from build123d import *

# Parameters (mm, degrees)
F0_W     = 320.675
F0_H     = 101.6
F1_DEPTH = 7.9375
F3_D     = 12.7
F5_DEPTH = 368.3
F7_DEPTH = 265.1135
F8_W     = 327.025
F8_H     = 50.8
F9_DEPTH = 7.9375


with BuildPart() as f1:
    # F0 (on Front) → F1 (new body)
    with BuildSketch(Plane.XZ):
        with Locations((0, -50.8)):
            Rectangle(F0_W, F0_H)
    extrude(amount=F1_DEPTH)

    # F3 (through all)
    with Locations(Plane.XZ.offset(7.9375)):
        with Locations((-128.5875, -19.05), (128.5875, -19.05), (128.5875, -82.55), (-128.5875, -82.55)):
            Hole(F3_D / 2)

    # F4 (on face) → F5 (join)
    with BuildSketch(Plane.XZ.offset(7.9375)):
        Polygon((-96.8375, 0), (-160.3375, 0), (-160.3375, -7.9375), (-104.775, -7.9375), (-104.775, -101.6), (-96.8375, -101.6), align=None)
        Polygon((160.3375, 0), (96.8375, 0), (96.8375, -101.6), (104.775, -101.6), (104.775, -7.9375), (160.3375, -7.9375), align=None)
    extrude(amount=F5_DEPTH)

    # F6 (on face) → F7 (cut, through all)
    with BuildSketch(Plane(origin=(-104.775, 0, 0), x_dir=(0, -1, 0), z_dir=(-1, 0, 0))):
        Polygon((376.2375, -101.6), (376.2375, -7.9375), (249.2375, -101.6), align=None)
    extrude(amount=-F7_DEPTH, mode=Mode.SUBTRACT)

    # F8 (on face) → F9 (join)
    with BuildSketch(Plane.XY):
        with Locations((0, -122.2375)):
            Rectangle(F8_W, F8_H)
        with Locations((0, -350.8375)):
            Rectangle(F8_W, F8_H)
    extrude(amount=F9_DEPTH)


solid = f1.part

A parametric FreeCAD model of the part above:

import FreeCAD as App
import Part
import Sketcher
from FreeCAD import Vector
Q = App.Units.Quantity

doc = App.newDocument("Part")
params = doc.addObject("Spreadsheet::Sheet", "Params")
for row, (alias, value) in enumerate([
    ("sketch1_height", "4 in"),
    ("sketch1_width", "12.625 in"),
    ("pad1_length", "0.3125 in"),
    ("sketch2_diameter", "0.5 in"),
    ("hole_diameter", "0.5 in"),
    ("sketch3_height", "4 in"),
    ("sketch3_width", "2.5 in"),
    ("sketch3_width2", "2.1875 in"),
    ("pad2_length", "14.5 in"),
    ("sketch4_width", "5 in"),
    ("sketch4_height", "3.6875 in"),
    ("sketch5_height", "2 in"),
    ("sketch5_width", "12.875 in"),
    ("pad3_length", "0.3125 in"),
], start=1):
    params.set(f"A{row}", alias)
    params.set(f"B{row}", "=" + value)
    params.setAlias(f"B{row}", alias)

body = doc.addObject("PartDesign::Body", "Body")

sketch1 = body.newObject("Sketcher::SketchObject", "Sketch")
sketch1.AttachmentSupport = (doc.getObject("XZ_Plane"), [""])
sketch1.MapMode = "FlatFace"
sketch1.addGeometry([
    Part.LineSegment(Vector(-160, 0, 0), Vector(-160, -102, 0)),
    Part.LineSegment(Vector(-160, -102, 0), Vector(160, -102, 0)),
    Part.LineSegment(Vector(160, -102, 0), Vector(160, 0, 0)),
    Part.LineSegment(Vector(160, 0, 0), Vector(-160, 0, 0)),
], False)
sketch1.addConstraint([
    Sketcher.Constraint("Coincident", 0, 2, 1, 1),
    Sketcher.Constraint("Coincident", 1, 2, 2, 1),
    Sketcher.Constraint("Coincident", 2, 2, 3, 1),
    Sketcher.Constraint("Coincident", 3, 2, 0, 1),
    Sketcher.Constraint("Vertical", 0),
    Sketcher.Constraint("Horizontal", 1),
    Sketcher.Constraint("Vertical", 2),
    Sketcher.Constraint("Horizontal", 3),
    Sketcher.Constraint("Symmetric", 2, 2, 3, 2, -1, 1),
    Sketcher.Constraint("DistanceY", 0, 2, 0, 1, Q("4 in")),
    Sketcher.Constraint("DistanceX", 1, 1, 1, 2, Q("12.625 in")),
])
sketch1.setExpression("Constraints[9]", "Params.sketch1_height")
sketch1.setExpression("Constraints[10]", "Params.sketch1_width")
pad1 = body.newObject("PartDesign::Pad", "Pad")
pad1.Profile = sketch1
pad1.setExpression("Length", "Params.pad1_length")

sketch2 = body.newObject("Sketcher::SketchObject", "Sketch001")
sketch2.AttachmentSupport = (doc.getObject("XZ_Plane"), [""])
sketch2.MapMode = "FlatFace"
sketch2.AttachmentOffset = App.Placement(Vector(0, 0, 0.3125 * 25.4), App.Rotation())
sketch2.addGeometry([
    Part.Circle(Vector(-129, -19, 0), Vector(0, 0, 1), 6),
    Part.Circle(Vector(129, -19, 0), Vector(0, 0, 1), 6),
    Part.Circle(Vector(129, -83, 0), Vector(0, 0, 1), 6),
    Part.Circle(Vector(-129, -83, 0), Vector(0, 0, 1), 6),
], False)
sketch2.addConstraint([
    Sketcher.Constraint("Equal", 0, 1),
    Sketcher.Constraint("Equal", 1, 2),
    Sketcher.Constraint("Equal", 2, 3),
    Sketcher.Constraint("Symmetric", 0, 3, 1, 3, -2),
    Sketcher.Constraint("Symmetric", 2, 3, 3, 3, -2),
    Sketcher.Constraint("Vertical", 1, 3, 2, 3),
    Sketcher.Constraint("Diameter", 0, Q("0.5 in")),
    Sketcher.Constraint("DistanceY", 2, 3, 1, 3, Q("2.5 in")),
    Sketcher.Constraint("DistanceY", 0, 3, -1, 1, Q("0.75 in")),
    Sketcher.Constraint("DistanceX", 0, 3, -1, 1, Q("5.0625 in")),
])
sketch2.setExpression("Constraints[6]", "Params.sketch2_diameter")
doc.recompute()
hole = body.newObject("PartDesign::Hole", "Hole")
hole.Profile = sketch2
hole.ThreadType = "None"
hole.setExpression("Diameter", "Params.hole_diameter")
hole.DepthType = "ThroughAll"

sketch3 = body.newObject("Sketcher::SketchObject", "Sketch002")
sketch3.AttachmentSupport = (doc.getObject("XZ_Plane"), [""])
sketch3.MapMode = "FlatFace"
sketch3.AttachmentOffset = App.Placement(Vector(0, 0, 0.3125 * 25.4), App.Rotation())
sketch3.addGeometry([
    Part.LineSegment(Vector(-97, 0, 0), Vector(-160, 0, 0)),
    Part.LineSegment(Vector(-160, 0, 0), Vector(-160, -8, 0)),
    Part.LineSegment(Vector(-160, -8, 0), Vector(-105, -8, 0)),
    Part.LineSegment(Vector(-105, -8, 0), Vector(-105, -102, 0)),
    Part.LineSegment(Vector(-105, -102, 0), Vector(-97, -102, 0)),
    Part.LineSegment(Vector(-97, -102, 0), Vector(-97, 0, 0)),
    Part.LineSegment(Vector(160, 0, 0), Vector(97, 0, 0)),
    Part.LineSegment(Vector(97, 0, 0), Vector(97, -102, 0)),
    Part.LineSegment(Vector(97, -102, 0), Vector(105, -102, 0)),
    Part.LineSegment(Vector(105, -102, 0), Vector(105, -8, 0)),
    Part.LineSegment(Vector(105, -8, 0), Vector(160, -8, 0)),
    Part.LineSegment(Vector(160, -8, 0), Vector(160, 0, 0)),
], False)
sketch3.addConstraint([
    Sketcher.Constraint("Coincident", 0, 2, 1, 1),
    Sketcher.Constraint("Coincident", 1, 2, 2, 1),
    Sketcher.Constraint("Coincident", 2, 2, 3, 1),
    Sketcher.Constraint("Coincident", 3, 2, 4, 1),
    Sketcher.Constraint("Coincident", 4, 2, 5, 1),
    Sketcher.Constraint("Coincident", 5, 2, 0, 1),
    Sketcher.Constraint("Coincident", 6, 2, 7, 1),
    Sketcher.Constraint("Coincident", 7, 2, 8, 1),
    Sketcher.Constraint("Coincident", 8, 2, 9, 1),
    Sketcher.Constraint("Coincident", 9, 2, 10, 1),
    Sketcher.Constraint("Coincident", 10, 2, 11, 1),
    Sketcher.Constraint("Coincident", 11, 2, 6, 1),
    Sketcher.Constraint("Horizontal", 0),
    Sketcher.Constraint("Vertical", 1),
    Sketcher.Constraint("Horizontal", 2),
    Sketcher.Constraint("Vertical", 3),
    Sketcher.Constraint("Horizontal", 4),
    Sketcher.Constraint("Vertical", 5),
    Sketcher.Constraint("Horizontal", 6),
    Sketcher.Constraint("Vertical", 7),
    Sketcher.Constraint("Horizontal", 8),
    Sketcher.Constraint("Vertical", 9),
    Sketcher.Constraint("Horizontal", 10),
    Sketcher.Constraint("Vertical", 11),
    Sketcher.Constraint("Symmetric", 5, 2, 6, 2, -1, 1),
    Sketcher.Constraint("Symmetric", 3, 2, 8, 2, -2),
    Sketcher.Constraint("Symmetric", 1, 2, 10, 2, -2),
    Sketcher.Constraint("PointOnObject", 0, 2, -1),
    Sketcher.Constraint("Equal", 8, 1),
    Sketcher.Constraint("DistanceY", 5, 1, 5, 2, Q("4 in")),
    Sketcher.Constraint("DistanceX", 0, 2, 0, 1, Q("2.5 in")),
    Sketcher.Constraint("DistanceX", 2, 1, 2, 2, Q("2.1875 in")),
    Sketcher.Constraint("DistanceX", 3, 2, 8, 2, Q("8.25 in")),
])
sketch3.setExpression("Constraints[29]", "Params.sketch3_height")
sketch3.setExpression("Constraints[30]", "Params.sketch3_width")
sketch3.setExpression("Constraints[31]", "Params.sketch3_width2")
pad2 = body.newObject("PartDesign::Pad", "Pad001")
pad2.Profile = sketch3
pad2.setExpression("Length", "Params.pad2_length")

sketch4 = body.newObject("Sketcher::SketchObject", "Sketch003")
sketch4.AttachmentSupport = (doc.getObject("YZ_Plane"), [""])
sketch4.MapMode = "FlatFace"
sketch4.AttachmentOffset = App.Placement(Vector(0, 0, -4.125 * 25.4), App.Rotation())
sketch4.addGeometry([
    Part.LineSegment(Vector(-376, -102, 0), Vector(-376, -8, 0)),
    Part.LineSegment(Vector(-376, -8, 0), Vector(-249, -102, 0)),
    Part.LineSegment(Vector(-249, -102, 0), Vector(-376, -102, 0)),
], False)
sketch4.addConstraint([
    Sketcher.Constraint("Coincident", 0, 2, 1, 1),
    Sketcher.Constraint("Coincident", 1, 2, 2, 1),
    Sketcher.Constraint("Coincident", 2, 2, 0, 1),
    Sketcher.Constraint("Vertical", 0),
    Sketcher.Constraint("Horizontal", 2),
    Sketcher.Constraint("DistanceX", 2, 2, 2, 1, Q("5 in")),
    Sketcher.Constraint("DistanceY", 1, 2, -1, 1, Q("4 in")),
    Sketcher.Constraint("DistanceY", 0, 1, 0, 2, Q("3.6875 in")),
    Sketcher.Constraint("DistanceX", 0, 2, -1, 1, Q("14.8125 in")),
])
sketch4.setExpression("Constraints[5]", "Params.sketch4_width")
sketch4.setExpression("Constraints[7]", "Params.sketch4_height")
pocket1 = body.newObject("PartDesign::Pocket", "Pocket")
pocket1.Profile = sketch4
pocket1.Type = "ThroughAll"
pocket1.Reversed = True

sketch5 = body.newObject("Sketcher::SketchObject", "Sketch004")
sketch5.AttachmentSupport = (doc.getObject("XY_Plane"), [""])
sketch5.MapMode = "FlatFace"
sketch5.addGeometry([
    Part.LineSegment(Vector(-164, -97, 0), Vector(-164, -148, 0)),
    Part.LineSegment(Vector(-164, -148, 0), Vector(164, -148, 0)),
    Part.LineSegment(Vector(164, -148, 0), Vector(164, -97, 0)),
    Part.LineSegment(Vector(164, -97, 0), Vector(-164, -97, 0)),
    Part.LineSegment(Vector(-164, -325, 0), Vector(-164, -376, 0)),
    Part.LineSegment(Vector(-164, -376, 0), Vector(164, -376, 0)),
    Part.LineSegment(Vector(164, -376, 0), Vector(164, -325, 0)),
    Part.LineSegment(Vector(164, -325, 0), Vector(-164, -325, 0)),
], False)
sketch5.addConstraint([
    Sketcher.Constraint("Coincident", 0, 2, 1, 1),
    Sketcher.Constraint("Coincident", 1, 2, 2, 1),
    Sketcher.Constraint("Coincident", 2, 2, 3, 1),
    Sketcher.Constraint("Coincident", 3, 2, 0, 1),
    Sketcher.Constraint("Coincident", 4, 2, 5, 1),
    Sketcher.Constraint("Coincident", 5, 2, 6, 1),
    Sketcher.Constraint("Coincident", 6, 2, 7, 1),
    Sketcher.Constraint("Coincident", 7, 2, 4, 1),
    Sketcher.Constraint("Vertical", 0),
    Sketcher.Constraint("Horizontal", 1),
    Sketcher.Constraint("Vertical", 2),
    Sketcher.Constraint("Horizontal", 3),
    Sketcher.Constraint("Vertical", 4),
    Sketcher.Constraint("Horizontal", 5),
    Sketcher.Constraint("Vertical", 6),
    Sketcher.Constraint("Horizontal", 7),
    Sketcher.Constraint("Vertical", 3, 2, 4, 2),
    Sketcher.Constraint("Vertical", 2, 2, 5, 2),
    Sketcher.Constraint("Equal", 2, 4),
    Sketcher.Constraint("DistanceY", 0, 2, 0, 1, Q("2 in")),
    Sketcher.Constraint("DistanceY", 4, 2, 0, 2, Q("9 in")),
    Sketcher.Constraint("DistanceX", 1, 1, 1, 2, Q("12.875 in")),
    Sketcher.Constraint("DistanceX", 0, 2, -1, 1, Q("6.4375 in")),
    Sketcher.Constraint("DistanceY", 0, 2, -1, 1, Q("5.8125 in")),
])
sketch5.setExpression("Constraints[19]", "Params.sketch5_height")
sketch5.setExpression("Constraints[21]", "Params.sketch5_width")
pad3 = body.newObject("PartDesign::Pad", "Pad002")
pad3.Profile = sketch5
pad3.setExpression("Length", "Params.pad3_length")

doc.recompute()
